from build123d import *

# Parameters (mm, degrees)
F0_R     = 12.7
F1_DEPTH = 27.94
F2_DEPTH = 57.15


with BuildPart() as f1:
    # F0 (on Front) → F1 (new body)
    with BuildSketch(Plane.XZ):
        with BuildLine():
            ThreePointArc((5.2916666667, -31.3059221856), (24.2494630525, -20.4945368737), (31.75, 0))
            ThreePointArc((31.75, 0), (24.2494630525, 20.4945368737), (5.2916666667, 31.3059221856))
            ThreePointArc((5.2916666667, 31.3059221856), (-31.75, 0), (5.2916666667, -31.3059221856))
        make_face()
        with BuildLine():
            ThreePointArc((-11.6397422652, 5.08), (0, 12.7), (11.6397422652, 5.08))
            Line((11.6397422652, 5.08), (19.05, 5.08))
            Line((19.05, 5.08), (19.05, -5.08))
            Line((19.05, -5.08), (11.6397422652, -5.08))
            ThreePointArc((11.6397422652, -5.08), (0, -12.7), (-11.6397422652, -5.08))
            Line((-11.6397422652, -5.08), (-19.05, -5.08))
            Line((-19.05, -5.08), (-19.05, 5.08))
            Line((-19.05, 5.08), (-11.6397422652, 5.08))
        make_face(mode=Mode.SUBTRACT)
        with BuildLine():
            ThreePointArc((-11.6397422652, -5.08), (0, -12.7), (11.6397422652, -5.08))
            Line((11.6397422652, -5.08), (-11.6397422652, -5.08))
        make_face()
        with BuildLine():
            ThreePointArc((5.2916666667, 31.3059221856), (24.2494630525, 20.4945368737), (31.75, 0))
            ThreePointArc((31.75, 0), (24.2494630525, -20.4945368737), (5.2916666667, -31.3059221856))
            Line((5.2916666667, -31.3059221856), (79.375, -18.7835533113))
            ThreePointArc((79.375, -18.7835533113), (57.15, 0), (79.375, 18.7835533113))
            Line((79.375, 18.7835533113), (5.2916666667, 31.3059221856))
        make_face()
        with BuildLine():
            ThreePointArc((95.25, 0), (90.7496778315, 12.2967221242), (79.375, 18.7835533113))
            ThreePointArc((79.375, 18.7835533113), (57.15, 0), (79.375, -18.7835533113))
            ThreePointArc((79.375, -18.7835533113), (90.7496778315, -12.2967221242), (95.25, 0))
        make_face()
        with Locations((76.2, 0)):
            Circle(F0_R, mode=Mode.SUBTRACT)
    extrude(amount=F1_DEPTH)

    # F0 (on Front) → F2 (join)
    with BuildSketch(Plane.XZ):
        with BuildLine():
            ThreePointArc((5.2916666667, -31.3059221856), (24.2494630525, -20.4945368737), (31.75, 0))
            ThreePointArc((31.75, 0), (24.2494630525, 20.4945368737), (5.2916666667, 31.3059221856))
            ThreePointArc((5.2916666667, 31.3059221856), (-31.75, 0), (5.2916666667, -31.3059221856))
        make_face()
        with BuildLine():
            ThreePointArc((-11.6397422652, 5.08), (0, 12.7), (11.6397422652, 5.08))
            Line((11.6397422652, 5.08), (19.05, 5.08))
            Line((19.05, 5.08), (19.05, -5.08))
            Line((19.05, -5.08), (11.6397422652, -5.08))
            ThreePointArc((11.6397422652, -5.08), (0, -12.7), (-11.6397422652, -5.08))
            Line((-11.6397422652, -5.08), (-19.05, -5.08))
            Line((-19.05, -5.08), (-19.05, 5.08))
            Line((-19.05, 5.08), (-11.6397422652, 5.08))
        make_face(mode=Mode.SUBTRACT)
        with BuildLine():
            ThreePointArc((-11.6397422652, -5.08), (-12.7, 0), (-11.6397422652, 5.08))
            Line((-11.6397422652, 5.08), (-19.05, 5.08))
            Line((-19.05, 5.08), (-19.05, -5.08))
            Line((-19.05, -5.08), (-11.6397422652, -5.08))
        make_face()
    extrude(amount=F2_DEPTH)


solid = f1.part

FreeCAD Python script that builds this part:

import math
import FreeCAD as App
import Part
import Sketcher
Q = App.Units.Quantity

doc = App.newDocument("Part")
params = doc.addObject("Spreadsheet::Sheet", "Params")
for row, (alias, value) in enumerate([
    ("sketch1_diameter", "1 in"),
    ("sketch1_radius", "1.25 in"),
    ("sketch1_radius2", "0.75 in"),
    ("sketch1_width", "1.5 in"),
    ("sketch1_height", "0.4 in"),
    ("pad1_length", "1.1 in"),
    ("sketch2_diameter", "2.5 in"),
    ("sketch2_radius", "0.5 in"),
    ("sketch2_height", "0.4 in"),
    ("pad2_length", "2.25 in"),
], start=1):
    params.set(f"A{row}", alias)
    params.set(f"B{row}", "=" + value)
    params.setAlias(f"B{row}", alias)

body = doc.addObject("PartDesign::Body", "Body")

sketch1 = body.newObject("Sketcher::SketchObject", "Sketch")
sketch1.AttachmentSupport = (doc.getObject("XZ_Plane"), [""])
sketch1.MapMode = "FlatFace"
sketch1.addGeometry([
    Part.ArcOfCircle(Part.Circle(App.Vector(0, 0, 0), App.Vector(0, 0, 1), 32), math.radians(80), math.radians(280)),
    Part.LineSegment(App.Vector(5, -31, 0), App.Vector(79, -19, 0)),
    Part.ArcOfCircle(Part.Circle(App.Vector(76, 0, 0), App.Vector(0, 0, 1), 19), math.radians(-80), math.radians(0)),
    Part.ArcOfCircle(Part.Circle(App.Vector(76, 0, 0), App.Vector(0, 0, 1), 19), math.radians(0), math.radians(80)),
    Part.LineSegment(App.Vector(79, 19, 0), App.Vector(5, 31, 0)),
    Part.LineSegment(App.Vector(-19, 5, 0), App.Vector(-12, 5, 0)),
    Part.ArcOfCircle(Part.Circle(App.Vector(0, 0, 0), App.Vector(0, 0, 1), 13), math.radians(24), math.radians(156)),
    Part.LineSegment(App.Vector(12, 5, 0), App.Vector(19, 5, 0)),
    Part.LineSegment(App.Vector(19, 5, 0), App.Vector(19, -5, 0)),
    Part.LineSegment(App.Vector(19, -5, 0), App.Vector(-19, -5, 0)),
    Part.LineSegment(App.Vector(-19, -5, 0), App.Vector(-19, 5, 0)),
    Part.Circle(App.Vector(76, 0, 0), App.Vector(0, 0, 1), 13),
], False)
sketch1.addConstraint([
    Sketcher.Constraint("Tangent", 0, 2, 1, 1),
    Sketcher.Constraint("Tangent", 1, 2, 2, 1),
    Sketcher.Constraint("Tangent", 2, 2, 3, 1),
    Sketcher.Constraint("Tangent", 3, 2, 4, 1),
    Sketcher.Constraint("Tangent", 4, 2, 0, 1),
    Sketcher.Constraint("Coincident", 5, 2, 6, 2),
    Sketcher.Constraint("Coincident", 6, 1, 7, 1),
    Sketcher.Constraint("Coincident", 7, 2, 8, 1),
    Sketcher.Constraint("Coincident", 8, 2, 9, 1),
    Sketcher.Constraint("Coincident", 9, 2, 10, 1),
    Sketcher.Constraint("Coincident", 10, 2, 5, 1),
    Sketcher.Constraint("Horizontal", 5),
    Sketcher.Constraint("Horizontal", 7),
    Sketcher.Constraint("Vertical", 8),
    Sketcher.Constraint("Horizontal", 9),
    Sketcher.Constraint("Vertical", 10),
    Sketcher.Constraint("Coincident", 0, 3, -1, 1),
    Sketcher.Constraint("Coincident", 6, 3, -1, 1),
    Sketcher.Constraint("Coincident", 11, 3, 2, 3),
    Sketcher.Constraint("Equal", 2, 3),
    Sketcher.Constraint("Equal", 6, 11),
    Sketcher.Constraint("Symmetric", 7, 2, 9, 2, -1, 1),
    Sketcher.Constraint("PointOnObject", 2, 3, -1),
    Sketcher.Constraint("PointOnObject", 2, 2, -1),
    Sketcher.Constraint("Horizontal", 5, 2, 6, 1),
    Sketcher.Constraint("Diameter", 11, Q("1 in")),
    Sketcher.Constraint("Radius", 0, Q("1.25 in")),
    Sketcher.Constraint("Radius", 2, Q("0.75 in")),
    Sketcher.Constraint("DistanceX", 9, 2, 9, 1, Q("1.5 in")),
    Sketcher.Constraint("DistanceY", 8, 2, 8, 1, Q("0.4 in")),
    Sketcher.Constraint("DistanceX", -1, 1, 2, 3, Q("3 in")),
])
sketch1.setExpression("Constraints[25]", "Params.sketch1_diameter")
sketch1.setExpression("Constraints[26]", "Params.sketch1_radius")
sketch1.setExpression("Constraints[27]", "Params.sketch1_radius2")
sketch1.setExpression("Constraints[28]", "Params.sketch1_width")
sketch1.setExpression("Constraints[29]", "Params.sketch1_height")
pad1 = body.newObject("PartDesign::Pad", "Pad")
pad1.Profile = sketch1
pad1.setExpression("Length", "Params.pad1_length")

sketch2 = body.newObject("Sketcher::SketchObject", "Sketch001")
sketch2.AttachmentSupport = (doc.getObject("XZ_Plane"), [""])
sketch2.MapMode = "FlatFace"
sketch2.addGeometry([
    Part.Circle(App.Vector(0, 0, 0), App.Vector(0, 0, 1), 32),
    Part.ArcOfCircle(Part.Circle(App.Vector(0, 0, 0), App.Vector(0, 0, 1), 13), math.radians(-156), math.radians(-24)),
    Part.ArcOfCircle(Part.Circle(App.Vector(0, 0, 0), App.Vector(0, 0, 1), 13), math.radians(156), math.radians(204)),
    Part.ArcOfCircle(Part.Circle(App.Vector(0, 0, 0), App.Vector(0, 0, 1), 13), math.radians(24), math.radians(156)),
    Part.LineSegment(App.Vector(12, 5, 0), App.Vector(19, 5, 0)),
    Part.LineSegment(App.Vector(19, 5, 0), App.Vector(19, -5, 0)),
    Part.LineSegment(App.Vector(19, -5, 0), App.Vector(12, -5, 0)),
], False)
sketch2.addConstraint([
    Sketcher.Constraint("Tangent", 1, 1, 2, 2),
    Sketcher.Constraint("Tangent", 2, 1, 3, 2),
    Sketcher.Constraint("Coincident", 3, 1, 4, 1),
    Sketcher.Constraint("Coincident", 4, 2, 5, 1),
    Sketcher.Constraint("Coincident", 5, 2, 6, 1),
    Sketcher.Constraint("Coincident", 6, 2, 1, 2),
    Sketcher.Constraint("Horizontal", 4),
    Sketcher.Constraint("Vertical", 5),
    Sketcher.Constraint("Horizontal", 6),
    Sketcher.Constraint("Coincident", 0, 3, -1, 1),
    Sketcher.Constraint("Coincident", 1, 3, -1, 1),
    Sketcher.Constraint("Coincident", 3, 3, -1, 1),
    Sketcher.Constraint("Horizontal", 2, 1, 3, 1),
    Sketcher.Constraint("Horizontal", 1, 1, 5, 2),
    Sketcher.Constraint("Vertical", 1, 1, 2, 1),
    Sketcher.Constraint("Diameter", 0, Q("2.5 in")),
    Sketcher.Constraint("Radius", 1, Q("0.5 in")),
    Sketcher.Constraint("DistanceY", 5, 2, 5, 1, Q("0.4 in")),
    Sketcher.Constraint("DistanceX", -1, 1, 4, 2, Q("0.75 in")),
])
sketch2.setExpression("Constraints[15]", "Params.sketch2_diameter")
sketch2.setExpression("Constraints[16]", "Params.sketch2_radius")
sketch2.setExpression("Constraints[17]", "Params.sketch2_height")
pad2 = body.newObject("PartDesign::Pad", "Pad001")
pad2.Profile = sketch2
pad2.setExpression("Length", "Params.pad2_length")

doc.recompute()
